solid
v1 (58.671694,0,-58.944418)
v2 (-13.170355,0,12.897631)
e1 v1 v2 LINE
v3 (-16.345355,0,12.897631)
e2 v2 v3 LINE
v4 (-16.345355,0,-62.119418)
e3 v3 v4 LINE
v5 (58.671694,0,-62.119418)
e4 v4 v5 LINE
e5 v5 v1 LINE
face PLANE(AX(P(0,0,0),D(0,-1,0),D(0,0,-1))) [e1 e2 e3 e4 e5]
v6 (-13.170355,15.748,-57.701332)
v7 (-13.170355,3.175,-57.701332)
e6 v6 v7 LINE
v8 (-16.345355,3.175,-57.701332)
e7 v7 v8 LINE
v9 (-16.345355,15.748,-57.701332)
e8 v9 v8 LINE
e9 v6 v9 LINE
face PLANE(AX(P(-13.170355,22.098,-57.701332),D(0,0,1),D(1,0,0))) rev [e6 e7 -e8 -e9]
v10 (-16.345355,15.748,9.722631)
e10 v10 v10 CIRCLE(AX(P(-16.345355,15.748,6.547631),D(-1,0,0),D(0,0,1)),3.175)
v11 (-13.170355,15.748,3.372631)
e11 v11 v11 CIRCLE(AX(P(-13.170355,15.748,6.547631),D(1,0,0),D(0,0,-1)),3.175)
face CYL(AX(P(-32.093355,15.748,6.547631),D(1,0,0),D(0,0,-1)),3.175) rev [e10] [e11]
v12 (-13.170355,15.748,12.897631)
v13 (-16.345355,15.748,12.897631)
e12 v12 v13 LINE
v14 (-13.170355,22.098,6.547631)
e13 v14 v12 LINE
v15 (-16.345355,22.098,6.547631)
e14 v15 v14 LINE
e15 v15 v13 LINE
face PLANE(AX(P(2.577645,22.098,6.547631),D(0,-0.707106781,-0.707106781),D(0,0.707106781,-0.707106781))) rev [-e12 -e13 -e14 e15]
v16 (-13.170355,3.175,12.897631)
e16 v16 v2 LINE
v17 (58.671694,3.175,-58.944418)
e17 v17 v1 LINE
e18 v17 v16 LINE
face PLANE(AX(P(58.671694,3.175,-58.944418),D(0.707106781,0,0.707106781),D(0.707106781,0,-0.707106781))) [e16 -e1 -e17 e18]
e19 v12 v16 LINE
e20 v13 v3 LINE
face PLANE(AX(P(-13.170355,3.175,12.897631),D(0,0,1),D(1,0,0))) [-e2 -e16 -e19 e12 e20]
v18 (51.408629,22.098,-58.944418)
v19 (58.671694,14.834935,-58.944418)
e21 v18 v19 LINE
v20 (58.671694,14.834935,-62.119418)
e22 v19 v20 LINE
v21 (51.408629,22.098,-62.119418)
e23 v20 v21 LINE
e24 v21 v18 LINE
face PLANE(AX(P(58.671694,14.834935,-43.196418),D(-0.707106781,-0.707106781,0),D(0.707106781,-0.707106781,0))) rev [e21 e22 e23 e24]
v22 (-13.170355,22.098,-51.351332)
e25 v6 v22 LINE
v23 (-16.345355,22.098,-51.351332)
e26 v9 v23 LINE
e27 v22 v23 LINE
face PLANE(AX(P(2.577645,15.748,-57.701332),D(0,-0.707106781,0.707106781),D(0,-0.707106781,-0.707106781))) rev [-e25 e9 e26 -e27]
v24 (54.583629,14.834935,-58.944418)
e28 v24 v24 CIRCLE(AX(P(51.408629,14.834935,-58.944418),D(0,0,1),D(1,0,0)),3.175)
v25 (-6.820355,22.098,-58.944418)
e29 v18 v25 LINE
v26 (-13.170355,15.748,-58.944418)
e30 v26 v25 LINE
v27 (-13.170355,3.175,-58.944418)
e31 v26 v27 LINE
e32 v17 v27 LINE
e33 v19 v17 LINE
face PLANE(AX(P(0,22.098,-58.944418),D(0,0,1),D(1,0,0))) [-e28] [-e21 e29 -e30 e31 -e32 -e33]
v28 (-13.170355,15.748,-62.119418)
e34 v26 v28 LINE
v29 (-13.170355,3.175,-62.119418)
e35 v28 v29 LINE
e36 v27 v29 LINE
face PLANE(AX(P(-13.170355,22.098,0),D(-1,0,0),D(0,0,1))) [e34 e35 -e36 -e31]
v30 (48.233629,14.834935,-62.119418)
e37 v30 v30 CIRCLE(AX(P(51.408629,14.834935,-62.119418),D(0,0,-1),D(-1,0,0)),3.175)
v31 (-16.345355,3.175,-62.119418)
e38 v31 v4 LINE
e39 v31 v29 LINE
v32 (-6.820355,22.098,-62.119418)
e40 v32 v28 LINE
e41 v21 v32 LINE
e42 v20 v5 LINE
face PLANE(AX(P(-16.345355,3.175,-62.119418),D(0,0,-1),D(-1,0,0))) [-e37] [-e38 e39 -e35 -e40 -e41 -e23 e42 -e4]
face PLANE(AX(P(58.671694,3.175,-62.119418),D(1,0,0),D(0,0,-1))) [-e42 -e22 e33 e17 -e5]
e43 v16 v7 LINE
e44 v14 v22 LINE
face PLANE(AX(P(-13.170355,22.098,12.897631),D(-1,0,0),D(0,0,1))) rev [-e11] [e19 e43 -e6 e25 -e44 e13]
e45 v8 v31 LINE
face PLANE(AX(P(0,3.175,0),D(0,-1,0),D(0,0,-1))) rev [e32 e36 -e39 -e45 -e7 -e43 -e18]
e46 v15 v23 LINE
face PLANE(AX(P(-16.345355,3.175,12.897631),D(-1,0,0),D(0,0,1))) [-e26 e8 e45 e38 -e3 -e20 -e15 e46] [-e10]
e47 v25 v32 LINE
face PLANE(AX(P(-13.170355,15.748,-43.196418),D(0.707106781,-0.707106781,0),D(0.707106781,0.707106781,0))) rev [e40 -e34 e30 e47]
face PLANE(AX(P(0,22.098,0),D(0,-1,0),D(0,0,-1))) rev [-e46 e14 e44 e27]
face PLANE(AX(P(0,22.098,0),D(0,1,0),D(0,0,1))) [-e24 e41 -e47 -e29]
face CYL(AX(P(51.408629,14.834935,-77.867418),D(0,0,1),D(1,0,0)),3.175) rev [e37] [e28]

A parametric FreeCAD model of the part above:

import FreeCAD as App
import Part
import Sketcher
from FreeCAD import Vector
Q = App.Units.Quantity

doc = App.newDocument("Part")
body = doc.addObject("PartDesign::Body", "Body")

sketch1 = body.newObject("Sketcher::SketchObject", "Sketch")
sketch1.AttachmentSupport = (doc.getObject("XZ_Plane"), [""])
sketch1.MapMode = "FlatFace"
sketch1.addGeometry([
    Part.LineSegment(Vector(58.7, -62.1, 0), Vector(-16.3, -62.1, 0)),
    Part.LineSegment(Vector(-16.3, -62.1, 0), Vector(-16.3, 12.9, 0)),
    Part.LineSegment(Vector(-16.3, 12.9, 0), Vector(-13.2, 12.9, 0)),
    Part.LineSegment(Vector(-13.2, 12.9, 0), Vector(58.7, -58.9, 0)),
    Part.LineSegment(Vector(58.7, -58.9, 0), Vector(58.7, -62.1, 0)),
], False)
sketch1.addConstraint([
    Sketcher.Constraint("Coincident", 0, 2, 1, 1),
    Sketcher.Constraint("Coincident", 1, 2, 2, 1),
    Sketcher.Constraint("Coincident", 2, 2, 3, 1),
    Sketcher.Constraint("Coincident", 3, 2, 4, 1),
    Sketcher.Constraint("Coincident", 4, 2, 0, 1),
    Sketcher.Constraint("Horizontal", 0),
    Sketcher.Constraint("Vertical", 1),
    Sketcher.Constraint("Horizontal", 2),
    Sketcher.Constraint("Vertical", 4),
    Sketcher.Constraint("Equal", 0, 1),
    Sketcher.Constraint("Equal", 2, 4),
    Sketcher.Constraint("Distance", 3, Q("4 in")),
    Sketcher.Constraint("DistanceX", 2, 1, 2, 2, Q("0.125 in")),
    Sketcher.Constraint("DistanceY", 0, 2, -1, 1, Q("62.119418 mm")),
    Sketcher.Constraint("DistanceX", 0, 2, -1, 1, Q("16.345355 mm")),
])
pad1 = body.newObject("PartDesign::Pad", "Pad")
pad1.Profile = sketch1
pad1.Length = Q("0.125 in")
pad1.Reversed = True

sketch2 = body.newObject("Sketcher::SketchObject", "Sketch001")
sketch2.AttachmentSupport = (doc.getObject("XZ_Plane"), [""])
sketch2.MapMode = "FlatFace"
sketch2.AttachmentOffset = App.Placement(Vector(0, 0, -0.125 * 25.4), App.Rotation())
sketch2.addGeometry([
    Part.LineSegment(Vector(-13.2, -62.1, 0), Vector(-13.2, -58.9, 0)),
    Part.LineSegment(Vector(-13.2, -58.9, 0), Vector(58.7, -58.9, 0)),
    Part.LineSegment(Vector(58.7, -58.9, 0), Vector(58.7, -62.1, 0)),
    Part.LineSegment(Vector(58.7, -62.1, 0), Vector(-13.2, -62.1, 0)),
], False)
sketch2.addConstraint([
    Sketcher.Constraint("Coincident", 0, 2, 1, 1),
    Sketcher.Constraint("Coincident", 1, 2, 2, 1),
    Sketcher.Constraint("Coincident", 2, 2, 3, 1),
    Sketcher.Constraint("Coincident", 3, 2, 0, 1),
    Sketcher.Constraint("Vertical", 0),
    Sketcher.Constraint("Horizontal", 1),
    Sketcher.Constraint("Vertical", 2),
    Sketcher.Constraint("Horizontal", 3),
    Sketcher.Constraint("DistanceY", 0, 1, 0, 2, Q("0.125 in")),
    Sketcher.Constraint("DistanceX", 1, 1, 1, 2, Q("71.842049 mm")),
    Sketcher.Constraint("DistanceY", 0, 2, -1, 1, Q("58.944418 mm")),
    Sketcher.Constraint("DistanceX", 0, 2, -1, 1, Q("13.170355 mm")),
])
pad2 = body.newObject("PartDesign::Pad", "Pad001")
pad2.Profile = sketch2
pad2.Length = Q("0.745 in")
pad2.Reversed = True

sketch3 = body.newObject("Sketcher::SketchObject", "Sketch002")
sketch3.AttachmentSupport = (doc.getObject("XZ_Plane"), [""])
sketch3.MapMode = "FlatFace"
sketch3.AttachmentOffset = App.Placement(Vector(0, 0, -0.125 * 25.4), App.Rotation())
sketch3.addGeometry([
    Part.LineSegment(Vector(-16.3, -57.7, 0), Vector(-16.3, 12.9, 0)),
    Part.LineSegment(Vector(-16.3, 12.9, 0), Vector(-13.2, 12.9, 0)),
    Part.LineSegment(Vector(-13.2, 12.9, 0), Vector(-13.2, -57.7, 0)),
    Part.LineSegment(Vector(-13.2, -57.7, 0), Vector(-16.3, -57.7, 0)),
], False)
sketch3.addConstraint([
    Sketcher.Constraint("Coincident", 0, 2, 1, 1),
    Sketcher.Constraint("Coincident", 1, 2, 2, 1),
    Sketcher.Constraint("Coincident", 2, 2, 3, 1),
    Sketcher.Constraint("Coincident", 3, 2, 0, 1),
    Sketcher.Constraint("Vertical", 0),
    Sketcher.Constraint("Horizontal", 1),
    Sketcher.Constraint("Vertical", 2),
    Sketcher.Constraint("Horizontal", 3),
    Sketcher.Constraint("DistanceX", 1, 1, 1, 2, Q("0.125 in")),
    Sketcher.Constraint("DistanceY", 0, 1, 0, 2, Q("70.598963 mm")),
    Sketcher.Constraint("DistanceY", -1, 1, 0, 2, Q("12.897631 mm")),
    Sketcher.Constraint("DistanceX", 0, 2, -1, 1, Q("16.345355 mm")),
])
pad3 = body.newObject("PartDesign::Pad", "Pad002")
pad3.Profile = sketch3
pad3.Length = Q("0.745 in")
pad3.Reversed = True

sketch4 = body.newObject("Sketcher::SketchObject", "Sketch003")
sketch4.AttachmentSupport = (doc.getObject("YZ_Plane"), [""])
sketch4.MapMode = "FlatFace"
sketch4.AttachmentOffset = App.Placement(Vector(0, 0, -16.345355), App.Rotation())
sketch4.addGeometry([
    Part.LineSegment(Vector(22, 7, 0), Vector(16, 13, 0)),
    Part.LineSegment(Vector(16, 13, 0), Vector(22, 13, 0)),
    Part.LineSegment(Vector(22, 13, 0), Vector(22, 7, 0)),
    Part.LineSegment(Vector(22, -58, 0), Vector(16, -58, 0)),
    Part.LineSegment(Vector(16, -58, 0), Vector(22, -51, 0)),
    Part.LineSegment(Vector(22, -51, 0), Vector(22, -58, 0)),
], False)
sketch4.addConstraint([
    Sketcher.Constraint("Coincident", 0, 2, 1, 1),
    Sketcher.Constraint("Coincident", 1, 2, 2, 1),
    Sketcher.Constraint("Coincident", 2, 2, 0, 1),
    Sketcher.Constraint("Coincident", 3, 2, 4, 1),
    Sketcher.Constraint("Coincident", 4, 2, 5, 1),
    Sketcher.Constraint("Coincident", 5, 2, 3, 1),
    Sketcher.Constraint("Horizontal", 1),
    Sketcher.Constraint("Vertical", 2),
    Sketcher.Constraint("Horizontal", 3),
    Sketcher.Constraint("Vertical", 5),
    Sketcher.Constraint("Perpendicular", 0, 4),
    Sketcher.Constraint("Vertical", 0, 2, 3, 2),
    Sketcher.Constraint("Vertical", 2, 2, 4, 2),
    Sketcher.Constraint("Equal", 3, 2),
    Sketcher.Constraint("DistanceX", 1, 1, 1, 2, Q("0.25 in")),
    Sketcher.Constraint("DistanceX", -1, 1, 0, 2, Q("0.62 in")),
    Sketcher.Constraint("DistanceY", -1, 1, 0, 2, Q("12.897631 mm")),
    Sketcher.Constraint("DistanceY", 3, 2, -1, 1, Q("57.701332 mm")),
])
pocket1 = body.newObject("PartDesign::Pocket", "Pocket")
pocket1.Profile = sketch4
pocket1.Length = Q("0.745 in")
pocket1.Reversed = True

sketch5 = body.newObject("Sketcher::SketchObject", "Sketch004")
sketch5.AttachmentSupport = (doc.getObject("XY_Plane"), [""])
sketch5.MapMode = "FlatFace"
sketch5.AttachmentOffset = App.Placement(Vector(0, 0, -62.119418), App.Rotation())
sketch5.addGeometry([
    Part.LineSegment(Vector(-7, 22, 0), Vector(-13, 16, 0)),
    Part.LineSegment(Vector(-13, 16, 0), Vector(-13, 22, 0)),
    Part.LineSegment(Vector(-13, 22, 0), Vector(-7, 22, 0)),
    Part.LineSegment(Vector(59, 15, 0), Vector(51, 22, 0)),
    Part.LineSegment(Vector(51, 22, 0), Vector(59, 22, 0)),
    Part.LineSegment(Vector(59, 22, 0), Vector(59, 15, 0)),
], False)
sketch5.addConstraint([
    Sketcher.Constraint("Coincident", 0, 2, 1, 1),
    Sketcher.Constraint("Coincident", 1, 2, 2, 1),
    Sketcher.Constraint("Coincident", 2, 2, 0, 1),
    Sketcher.Constraint("Coincident", 3, 2, 4, 1),
    Sketcher.Constraint("Coincident", 4, 2, 5, 1),
    Sketcher.Constraint("Coincident", 5, 2, 3, 1),
    Sketcher.Constraint("Vertical", 1),
    Sketcher.Constraint("Horizontal", 2),
    Sketcher.Constraint("Horizontal", 4),
    Sketcher.Constraint("Vertical", 5),
    Sketcher.Constraint("Perpendicular", 0, 3),
    Sketcher.Constraint("Horizontal", 2, 2, 3, 2),
    Sketcher.Constraint("Equal", 2, 1),
    Sketcher.Constraint("DistanceX", 2, 1, 2, 2, Q("0.25 in")),
    Sketcher.Constraint("DistanceY", -1, 1, 0, 2, Q("0.62 in")),
    Sketcher.Constraint("DistanceX", 4, 1, 4, 2, Q("7.263065 mm")),
    Sketcher.Constraint("DistanceX", -1, 1, 3, 2, Q("51.408629 mm")),
    Sketcher.Constraint("DistanceX", 2, 2, 4, 2, Q("65.492049 mm")),
])
pocket2 = body.newObject("PartDesign::Pocket", "Pocket001")
pocket2.Profile = sketch5
pocket2.Length = Q("0.745 in")
pocket2.Reversed = True

sketch6 = body.newObject("Sketcher::SketchObject", "Sketch005")
sketch6.AttachmentSupport = (doc.getObject("YZ_Plane"), [""])
sketch6.MapMode = "FlatFace"
sketch6.AttachmentOffset = App.Placement(Vector(0, 0, -13.170355), App.Rotation())
sketch6.addGeometry(Part.Circle(Vector(15.7, 6.5, 0), Vector(0, 0, 1), 3.2), False)
sketch6.addConstraint([
    Sketcher.Constraint("Diameter", 0, Q("0.25 in")),
    Sketcher.Constraint("DistanceX", -1, 1, 0, 3, Q("0.62 in")),
    Sketcher.Constraint("DistanceY", -1, 1, 0, 3, Q("6.547631 mm")),
])
pocket3 = body.newObject("PartDesign::Pocket", "Pocket002")
pocket3.Profile = sketch6
pocket3.Length = Q("0.745 in")

sketch7 = body.newObject("Sketcher::SketchObject", "Sketch006")
sketch7.AttachmentSupport = (doc.getObject("XY_Plane"), [""])
sketch7.MapMode = "FlatFace"
sketch7.AttachmentOffset = App.Placement(Vector(0, 0, -58.944418), App.Rotation())
sketch7.addGeometry(Part.Circle(Vector(51.4, 14.8, 0), Vector(0, 0, 1), 3.2), False)
sketch7.addConstraint([
    Sketcher.Constraint("Diameter", 0, Q("0.25 in")),
    Sketcher.Constraint("DistanceX", -1, 1, 0, 3, Q("51.408629 mm")),
    Sketcher.Constraint("DistanceY", -1, 1, 0, 3, Q("14.834935 mm")),
])
pocket4 = body.newObject("PartDesign::Pocket", "Pocket003")
pocket4.Profile = sketch7
pocket4.Length = Q("0.745 in")

doc.recompute()
